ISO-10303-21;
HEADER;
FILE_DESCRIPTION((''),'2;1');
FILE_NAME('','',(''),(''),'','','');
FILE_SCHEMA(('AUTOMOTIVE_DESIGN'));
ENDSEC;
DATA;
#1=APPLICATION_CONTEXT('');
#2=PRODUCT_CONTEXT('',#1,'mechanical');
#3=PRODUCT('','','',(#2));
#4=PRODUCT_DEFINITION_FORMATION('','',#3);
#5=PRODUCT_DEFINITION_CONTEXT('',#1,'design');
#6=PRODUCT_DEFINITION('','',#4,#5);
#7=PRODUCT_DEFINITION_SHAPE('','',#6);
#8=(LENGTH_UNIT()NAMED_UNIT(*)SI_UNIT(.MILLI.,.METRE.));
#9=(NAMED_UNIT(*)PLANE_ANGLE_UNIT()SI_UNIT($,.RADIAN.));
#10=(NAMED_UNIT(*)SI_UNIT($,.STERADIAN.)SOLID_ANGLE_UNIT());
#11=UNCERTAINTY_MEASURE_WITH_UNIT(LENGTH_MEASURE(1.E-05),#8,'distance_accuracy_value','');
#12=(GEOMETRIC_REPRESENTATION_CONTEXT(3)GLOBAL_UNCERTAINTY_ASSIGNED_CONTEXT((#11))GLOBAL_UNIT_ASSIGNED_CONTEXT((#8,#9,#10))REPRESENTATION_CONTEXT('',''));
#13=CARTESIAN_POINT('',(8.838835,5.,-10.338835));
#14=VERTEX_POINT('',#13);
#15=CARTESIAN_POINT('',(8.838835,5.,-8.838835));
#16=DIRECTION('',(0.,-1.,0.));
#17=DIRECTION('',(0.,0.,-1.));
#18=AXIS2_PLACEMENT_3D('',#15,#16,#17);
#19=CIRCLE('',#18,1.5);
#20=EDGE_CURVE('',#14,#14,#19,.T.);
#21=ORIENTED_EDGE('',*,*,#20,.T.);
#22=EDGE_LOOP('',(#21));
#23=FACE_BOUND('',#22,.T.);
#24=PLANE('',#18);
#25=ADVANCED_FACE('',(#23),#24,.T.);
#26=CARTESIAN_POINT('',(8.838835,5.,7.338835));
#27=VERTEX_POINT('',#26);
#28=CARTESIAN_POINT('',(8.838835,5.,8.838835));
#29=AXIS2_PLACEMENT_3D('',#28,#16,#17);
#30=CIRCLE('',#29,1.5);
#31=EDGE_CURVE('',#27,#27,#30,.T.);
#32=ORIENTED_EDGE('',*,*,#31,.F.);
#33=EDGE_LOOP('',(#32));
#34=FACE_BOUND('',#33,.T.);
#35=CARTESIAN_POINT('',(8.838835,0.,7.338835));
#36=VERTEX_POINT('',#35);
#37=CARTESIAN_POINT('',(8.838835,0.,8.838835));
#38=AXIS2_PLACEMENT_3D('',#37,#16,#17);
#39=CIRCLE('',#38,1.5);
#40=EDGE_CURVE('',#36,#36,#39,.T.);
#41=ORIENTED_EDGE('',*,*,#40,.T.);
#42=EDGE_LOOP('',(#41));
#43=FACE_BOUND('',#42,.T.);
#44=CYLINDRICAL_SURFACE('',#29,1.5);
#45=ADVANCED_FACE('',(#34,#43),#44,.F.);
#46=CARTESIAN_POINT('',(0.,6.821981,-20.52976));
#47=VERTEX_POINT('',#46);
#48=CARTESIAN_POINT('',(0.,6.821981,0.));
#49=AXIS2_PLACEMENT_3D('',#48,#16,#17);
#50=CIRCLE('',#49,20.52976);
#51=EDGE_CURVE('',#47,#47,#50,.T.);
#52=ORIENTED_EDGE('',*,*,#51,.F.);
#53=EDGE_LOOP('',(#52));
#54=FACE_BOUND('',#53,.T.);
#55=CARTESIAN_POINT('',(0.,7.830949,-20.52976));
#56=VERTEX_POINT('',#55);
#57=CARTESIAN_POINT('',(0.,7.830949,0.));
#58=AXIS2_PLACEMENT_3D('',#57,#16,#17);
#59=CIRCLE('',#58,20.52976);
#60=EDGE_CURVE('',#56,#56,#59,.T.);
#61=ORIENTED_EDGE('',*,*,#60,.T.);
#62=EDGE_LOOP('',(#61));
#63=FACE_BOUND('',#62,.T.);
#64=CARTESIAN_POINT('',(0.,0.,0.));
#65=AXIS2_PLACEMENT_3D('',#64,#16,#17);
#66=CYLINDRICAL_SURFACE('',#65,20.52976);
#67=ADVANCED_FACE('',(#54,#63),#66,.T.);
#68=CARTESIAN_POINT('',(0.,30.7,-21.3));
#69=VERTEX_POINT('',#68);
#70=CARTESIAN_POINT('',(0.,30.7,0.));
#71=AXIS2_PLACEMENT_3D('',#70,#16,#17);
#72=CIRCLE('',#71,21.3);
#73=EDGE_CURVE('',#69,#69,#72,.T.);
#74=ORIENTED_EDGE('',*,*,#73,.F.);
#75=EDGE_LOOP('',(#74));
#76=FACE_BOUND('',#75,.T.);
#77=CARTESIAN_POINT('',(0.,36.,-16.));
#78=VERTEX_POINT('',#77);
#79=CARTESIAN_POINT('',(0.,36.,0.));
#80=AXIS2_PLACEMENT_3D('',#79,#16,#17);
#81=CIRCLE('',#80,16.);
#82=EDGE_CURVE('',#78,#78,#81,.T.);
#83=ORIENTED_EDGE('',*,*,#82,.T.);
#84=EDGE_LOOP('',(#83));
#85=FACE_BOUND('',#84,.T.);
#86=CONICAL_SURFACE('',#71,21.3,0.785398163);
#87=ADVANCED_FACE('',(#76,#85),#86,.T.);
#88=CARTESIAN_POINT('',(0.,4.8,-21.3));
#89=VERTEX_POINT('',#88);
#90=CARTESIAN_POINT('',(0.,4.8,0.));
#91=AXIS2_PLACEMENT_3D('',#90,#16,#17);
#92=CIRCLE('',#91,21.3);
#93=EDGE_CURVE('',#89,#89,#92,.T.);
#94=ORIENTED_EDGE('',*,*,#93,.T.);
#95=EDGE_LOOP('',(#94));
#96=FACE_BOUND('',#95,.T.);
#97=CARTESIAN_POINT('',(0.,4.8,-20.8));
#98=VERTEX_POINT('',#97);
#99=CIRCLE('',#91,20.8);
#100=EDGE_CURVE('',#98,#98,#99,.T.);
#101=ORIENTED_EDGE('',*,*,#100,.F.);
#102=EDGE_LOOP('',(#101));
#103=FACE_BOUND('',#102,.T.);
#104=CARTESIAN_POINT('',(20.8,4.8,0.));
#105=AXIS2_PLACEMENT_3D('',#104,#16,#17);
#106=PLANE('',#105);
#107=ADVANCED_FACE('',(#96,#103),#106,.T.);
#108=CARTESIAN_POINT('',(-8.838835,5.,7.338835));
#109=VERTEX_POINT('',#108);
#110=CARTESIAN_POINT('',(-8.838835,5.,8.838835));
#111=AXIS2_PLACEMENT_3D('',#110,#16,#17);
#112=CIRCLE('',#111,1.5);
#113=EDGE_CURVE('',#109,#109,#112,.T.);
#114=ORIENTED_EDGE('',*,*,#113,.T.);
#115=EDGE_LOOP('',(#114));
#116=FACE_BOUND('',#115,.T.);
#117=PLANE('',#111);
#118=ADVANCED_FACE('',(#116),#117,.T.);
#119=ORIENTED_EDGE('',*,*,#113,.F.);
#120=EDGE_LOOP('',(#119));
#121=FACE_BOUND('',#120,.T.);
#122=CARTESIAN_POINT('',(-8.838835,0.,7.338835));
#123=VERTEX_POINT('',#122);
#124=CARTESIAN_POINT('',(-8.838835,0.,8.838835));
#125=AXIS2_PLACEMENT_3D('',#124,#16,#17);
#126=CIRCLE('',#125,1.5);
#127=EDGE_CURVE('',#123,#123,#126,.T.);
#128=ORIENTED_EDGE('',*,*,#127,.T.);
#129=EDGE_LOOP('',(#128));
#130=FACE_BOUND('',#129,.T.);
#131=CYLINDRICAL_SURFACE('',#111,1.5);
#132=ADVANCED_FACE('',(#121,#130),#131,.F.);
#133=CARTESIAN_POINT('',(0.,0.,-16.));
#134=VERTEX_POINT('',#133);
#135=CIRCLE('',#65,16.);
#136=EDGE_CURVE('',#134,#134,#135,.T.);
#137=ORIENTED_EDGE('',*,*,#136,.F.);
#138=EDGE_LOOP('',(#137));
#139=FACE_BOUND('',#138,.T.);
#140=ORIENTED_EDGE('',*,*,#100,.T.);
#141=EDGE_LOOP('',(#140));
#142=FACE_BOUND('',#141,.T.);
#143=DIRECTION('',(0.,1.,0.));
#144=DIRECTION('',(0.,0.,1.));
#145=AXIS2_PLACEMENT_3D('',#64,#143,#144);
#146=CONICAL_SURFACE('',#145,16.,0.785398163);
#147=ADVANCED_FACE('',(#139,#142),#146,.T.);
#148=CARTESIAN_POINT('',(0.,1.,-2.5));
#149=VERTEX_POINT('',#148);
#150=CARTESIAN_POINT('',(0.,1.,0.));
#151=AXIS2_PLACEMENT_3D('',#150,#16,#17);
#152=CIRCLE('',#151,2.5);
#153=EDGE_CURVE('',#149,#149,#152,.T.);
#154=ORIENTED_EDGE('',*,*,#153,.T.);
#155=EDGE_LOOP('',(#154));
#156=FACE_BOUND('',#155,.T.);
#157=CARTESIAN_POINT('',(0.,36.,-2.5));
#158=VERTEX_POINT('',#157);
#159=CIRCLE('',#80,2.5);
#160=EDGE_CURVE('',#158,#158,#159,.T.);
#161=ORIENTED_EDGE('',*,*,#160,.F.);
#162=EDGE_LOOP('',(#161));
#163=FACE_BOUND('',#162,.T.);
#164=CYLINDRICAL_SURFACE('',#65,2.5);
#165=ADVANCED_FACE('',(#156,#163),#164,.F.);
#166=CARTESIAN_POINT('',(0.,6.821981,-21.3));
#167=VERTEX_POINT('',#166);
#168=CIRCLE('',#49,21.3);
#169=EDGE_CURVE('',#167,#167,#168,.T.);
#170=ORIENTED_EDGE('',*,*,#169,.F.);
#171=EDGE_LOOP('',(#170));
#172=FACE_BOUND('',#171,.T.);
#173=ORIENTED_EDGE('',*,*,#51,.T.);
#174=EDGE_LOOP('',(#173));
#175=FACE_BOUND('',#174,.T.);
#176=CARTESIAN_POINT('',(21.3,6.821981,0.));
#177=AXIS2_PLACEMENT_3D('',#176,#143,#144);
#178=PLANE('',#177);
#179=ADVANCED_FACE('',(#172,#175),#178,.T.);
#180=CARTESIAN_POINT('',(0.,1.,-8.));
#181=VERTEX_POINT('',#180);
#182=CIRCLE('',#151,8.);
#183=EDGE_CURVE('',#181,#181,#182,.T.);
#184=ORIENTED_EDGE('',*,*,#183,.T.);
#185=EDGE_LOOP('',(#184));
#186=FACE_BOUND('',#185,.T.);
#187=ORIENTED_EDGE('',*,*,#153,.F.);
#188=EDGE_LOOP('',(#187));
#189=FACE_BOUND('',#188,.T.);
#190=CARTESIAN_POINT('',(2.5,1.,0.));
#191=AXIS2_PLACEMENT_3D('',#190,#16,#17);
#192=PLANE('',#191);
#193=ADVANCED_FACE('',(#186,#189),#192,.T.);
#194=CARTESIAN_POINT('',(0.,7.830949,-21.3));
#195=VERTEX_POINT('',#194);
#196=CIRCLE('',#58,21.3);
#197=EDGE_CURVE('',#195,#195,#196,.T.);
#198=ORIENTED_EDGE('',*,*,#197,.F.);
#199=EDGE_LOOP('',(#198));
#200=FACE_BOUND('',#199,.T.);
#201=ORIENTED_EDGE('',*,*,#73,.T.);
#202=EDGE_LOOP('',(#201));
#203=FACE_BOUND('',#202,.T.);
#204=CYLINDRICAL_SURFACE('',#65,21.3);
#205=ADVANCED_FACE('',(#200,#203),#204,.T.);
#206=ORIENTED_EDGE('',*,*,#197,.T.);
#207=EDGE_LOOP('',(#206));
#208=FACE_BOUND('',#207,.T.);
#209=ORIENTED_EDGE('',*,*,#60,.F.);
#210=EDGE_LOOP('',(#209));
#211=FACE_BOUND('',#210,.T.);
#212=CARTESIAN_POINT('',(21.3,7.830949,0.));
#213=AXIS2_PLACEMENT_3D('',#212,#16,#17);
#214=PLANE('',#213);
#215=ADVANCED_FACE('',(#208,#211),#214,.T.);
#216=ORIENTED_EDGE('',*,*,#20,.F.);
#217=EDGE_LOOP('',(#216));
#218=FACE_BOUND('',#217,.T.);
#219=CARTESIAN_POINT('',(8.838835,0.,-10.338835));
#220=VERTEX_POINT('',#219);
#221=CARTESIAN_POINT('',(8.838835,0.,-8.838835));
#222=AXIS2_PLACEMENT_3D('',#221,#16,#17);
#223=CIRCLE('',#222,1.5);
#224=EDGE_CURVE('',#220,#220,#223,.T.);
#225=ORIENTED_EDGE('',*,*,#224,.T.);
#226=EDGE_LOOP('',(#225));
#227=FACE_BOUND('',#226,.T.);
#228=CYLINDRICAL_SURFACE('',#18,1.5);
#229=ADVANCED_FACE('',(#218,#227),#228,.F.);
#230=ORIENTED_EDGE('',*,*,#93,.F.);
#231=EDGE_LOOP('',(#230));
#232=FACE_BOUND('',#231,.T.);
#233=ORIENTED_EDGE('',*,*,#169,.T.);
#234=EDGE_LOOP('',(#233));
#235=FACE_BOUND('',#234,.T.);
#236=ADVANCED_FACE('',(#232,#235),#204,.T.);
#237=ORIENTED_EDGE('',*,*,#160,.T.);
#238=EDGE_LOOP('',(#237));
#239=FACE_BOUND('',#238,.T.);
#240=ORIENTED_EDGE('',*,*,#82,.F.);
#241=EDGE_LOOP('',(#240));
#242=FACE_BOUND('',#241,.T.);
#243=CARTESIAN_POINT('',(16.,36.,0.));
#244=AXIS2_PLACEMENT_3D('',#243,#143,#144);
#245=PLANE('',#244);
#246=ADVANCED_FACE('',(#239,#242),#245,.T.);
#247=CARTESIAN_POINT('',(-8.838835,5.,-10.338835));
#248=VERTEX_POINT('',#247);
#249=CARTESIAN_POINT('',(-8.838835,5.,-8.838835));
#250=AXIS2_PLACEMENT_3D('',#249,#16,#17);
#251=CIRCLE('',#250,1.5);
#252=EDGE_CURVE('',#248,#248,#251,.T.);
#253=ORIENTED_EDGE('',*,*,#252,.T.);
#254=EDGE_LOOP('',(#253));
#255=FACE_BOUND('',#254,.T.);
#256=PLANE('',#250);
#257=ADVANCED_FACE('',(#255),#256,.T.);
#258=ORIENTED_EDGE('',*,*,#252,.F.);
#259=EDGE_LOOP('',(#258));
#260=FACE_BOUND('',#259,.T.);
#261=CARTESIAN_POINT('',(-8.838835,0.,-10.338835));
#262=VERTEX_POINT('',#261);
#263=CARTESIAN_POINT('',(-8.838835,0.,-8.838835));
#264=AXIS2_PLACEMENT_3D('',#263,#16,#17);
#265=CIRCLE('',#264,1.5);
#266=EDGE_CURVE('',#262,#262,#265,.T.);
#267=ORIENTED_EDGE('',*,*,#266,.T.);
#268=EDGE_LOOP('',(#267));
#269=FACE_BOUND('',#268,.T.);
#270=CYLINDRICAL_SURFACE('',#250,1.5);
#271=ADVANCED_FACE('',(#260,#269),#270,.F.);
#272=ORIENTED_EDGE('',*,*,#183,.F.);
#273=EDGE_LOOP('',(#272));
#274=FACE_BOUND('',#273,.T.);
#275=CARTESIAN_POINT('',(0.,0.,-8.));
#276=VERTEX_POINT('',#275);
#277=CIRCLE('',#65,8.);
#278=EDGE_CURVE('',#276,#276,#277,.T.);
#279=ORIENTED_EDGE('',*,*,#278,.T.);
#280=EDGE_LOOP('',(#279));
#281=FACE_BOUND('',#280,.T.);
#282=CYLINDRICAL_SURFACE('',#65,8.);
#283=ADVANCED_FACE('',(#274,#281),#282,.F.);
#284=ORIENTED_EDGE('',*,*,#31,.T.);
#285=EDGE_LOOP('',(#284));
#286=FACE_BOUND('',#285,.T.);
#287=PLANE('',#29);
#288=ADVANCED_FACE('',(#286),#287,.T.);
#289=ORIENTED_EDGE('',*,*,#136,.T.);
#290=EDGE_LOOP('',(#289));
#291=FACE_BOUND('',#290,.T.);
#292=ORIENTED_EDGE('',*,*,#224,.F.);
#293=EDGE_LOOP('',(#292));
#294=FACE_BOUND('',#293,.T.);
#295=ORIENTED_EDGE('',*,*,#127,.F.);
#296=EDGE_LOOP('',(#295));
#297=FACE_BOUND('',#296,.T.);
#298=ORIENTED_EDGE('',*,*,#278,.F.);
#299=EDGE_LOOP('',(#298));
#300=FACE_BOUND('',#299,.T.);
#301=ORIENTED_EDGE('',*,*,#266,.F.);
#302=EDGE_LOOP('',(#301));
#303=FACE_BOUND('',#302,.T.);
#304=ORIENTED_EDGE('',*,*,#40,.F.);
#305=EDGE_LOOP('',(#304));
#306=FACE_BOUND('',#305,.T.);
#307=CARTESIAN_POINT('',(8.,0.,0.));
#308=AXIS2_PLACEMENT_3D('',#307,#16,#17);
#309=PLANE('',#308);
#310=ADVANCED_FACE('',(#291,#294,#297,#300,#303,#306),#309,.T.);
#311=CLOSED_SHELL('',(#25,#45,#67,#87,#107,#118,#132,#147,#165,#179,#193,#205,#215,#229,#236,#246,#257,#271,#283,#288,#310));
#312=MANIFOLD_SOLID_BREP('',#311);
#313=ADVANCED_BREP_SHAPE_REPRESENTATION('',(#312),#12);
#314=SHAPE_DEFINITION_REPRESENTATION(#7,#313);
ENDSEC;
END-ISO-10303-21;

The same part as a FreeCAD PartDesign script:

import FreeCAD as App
import Part
import Sketcher
Q = App.Units.Quantity


def add_polygon(sketch, points):
    """Adds a closed chain of lines whose ends are joined by coincident constraints."""
    first, n = sketch.GeometryCount, len(points)
    for a, b in zip(points, points[1:] + points[:1]):
        sketch.addGeometry(Part.LineSegment(App.Vector(*a, 0), App.Vector(*b, 0)), False)
    for i in range(n):
        sketch.addConstraint(Sketcher.Constraint("Coincident", first + i, 2, first + (i + 1) % n, 1))

doc = App.newDocument("Part")
body = doc.addObject("PartDesign::Body", "Body")

sketch1 = body.newObject("Sketcher::SketchObject", "Sketch")
sketch1.AttachmentSupport = (doc.getObject("XY_Plane"), [""])
sketch1.MapMode = "FlatFace"
add_polygon(sketch1, [(8, 0), (16, 0), (20.8, 4.8), (21.3, 4.8), (21.3, 6.8), (20.5, 6.8), (20.5, 7.8), (21.3, 7.8), (21.3, 30.7), (16, 36), (2.5, 36), (2.5, 1), (8, 1)])
sketch1.addConstraint(Sketcher.Constraint("Horizontal", 0))
sketch1.addConstraint(Sketcher.Constraint("Horizontal", 2))
sketch1.addConstraint(Sketcher.Constraint("Vertical", 3))
sketch1.addConstraint(Sketcher.Constraint("Horizontal", 4))
sketch1.addConstraint(Sketcher.Constraint("Vertical", 5))
sketch1.addConstraint(Sketcher.Constraint("Horizontal", 6))
sketch1.addConstraint(Sketcher.Constraint("Vertical", 7))
sketch1.addConstraint(Sketcher.Constraint("Horizontal", 9))
sketch1.addConstraint(Sketcher.Constraint("Vertical", 10))
sketch1.addConstraint(Sketcher.Constraint("Horizontal", 11))
sketch1.addConstraint(Sketcher.Constraint("Vertical", 12))
sketch1.addConstraint(Sketcher.Constraint("PointOnObject", 0, 2, -1))
sketch1.addConstraint(Sketcher.Constraint("Perpendicular", 1, 8))
sketch1.addConstraint(Sketcher.Constraint("Vertical", 3, 2, 6, 2))
sketch1.addConstraint(Sketcher.Constraint("Vertical", 0, 2, 8, 2))
sketch1.addConstraint(Sketcher.Constraint("DistanceX", 0, 1, 0, 2, 8.0))
sketch1.addConstraint(Sketcher.Constraint("DistanceY", 10, 2, 10, 1, 35.0))
sketch1.addConstraint(Sketcher.Constraint("DistanceY", 12, 2, 12, 1, 1.0))
sketch1.addConstraint(Sketcher.Constraint("Angle", 1, Q("45 deg")))
sketch1.addConstraint(Sketcher.Constraint("DistanceX", 2, 1, 2, 2, 0.5))
sketch1.addConstraint(Sketcher.Constraint("DistanceX", 9, 2, 9, 1, 13.5))
sketch1.addConstraint(Sketcher.Constraint("DistanceX", -1, 1, 0, 2, 16.0))
sketch1.addConstraint(Sketcher.Constraint("DistanceX", -1, 1, 1, 2, 20.8))
sketch1.addConstraint(Sketcher.Constraint("DistanceX", 4, 2, 4, 1, 0.77024))
sketch1.addConstraint(Sketcher.Constraint("DistanceY", 3, 1, 3, 2, 2.021981))
sketch1.addConstraint(Sketcher.Constraint("DistanceY", 5, 1, 5, 2, 1.008969))
revolution = body.newObject("PartDesign::Revolution", "Revolution")
revolution.Profile = sketch1
revolution.ReferenceAxis = (sketch1, ["V_Axis"])
revolution.Angle = 360

sketch2 = body.newObject("Sketcher::SketchObject", "Sketch001")
sketch2.AttachmentSupport = (doc.getObject("XZ_Plane"), [""])
sketch2.MapMode = "FlatFace"
sketch2.addGeometry(Part.Circle(App.Vector(-8.8, 8.8, 0), App.Vector(0, 0, 1), 1.5), False)
sketch2.addGeometry(Part.Circle(App.Vector(8.8, 8.8, 0), App.Vector(0, 0, 1), 1.5), False)
sketch2.addGeometry(Part.Circle(App.Vector(8.8, -8.8, 0), App.Vector(0, 0, 1), 1.5), False)
sketch2.addGeometry(Part.Circle(App.Vector(-8.8, -8.8, 0), App.Vector(0, 0, 1), 1.5), False)
sketch2.addConstraint(Sketcher.Constraint("Equal", 0, 1))
sketch2.addConstraint(Sketcher.Constraint("Equal", 1, 2))
sketch2.addConstraint(Sketcher.Constraint("Equal", 2, 3))
sketch2.addConstraint(Sketcher.Constraint("Symmetric", 0, 3, 2, 3, -1, 1))
sketch2.addConstraint(Sketcher.Constraint("Symmetric", 1, 3, 3, 3, -1, 1))
sketch2.addConstraint(Sketcher.Constraint("Symmetric", 0, 3, 1, 3, -2))
sketch2.addConstraint(Sketcher.Constraint("Diameter", 0, 3.0))
sketch2.addConstraint(Sketcher.Constraint("DistanceX", 0, 3, 1, 3, 17.67767))
sketch2.addConstraint(Sketcher.Constraint("DistanceY", 2, 3, 1, 3, 17.67767))
pocket1 = body.newObject("PartDesign::Pocket", "Pocket")
pocket1.Profile = sketch2
pocket1.Length = 5

doc.recompute()
